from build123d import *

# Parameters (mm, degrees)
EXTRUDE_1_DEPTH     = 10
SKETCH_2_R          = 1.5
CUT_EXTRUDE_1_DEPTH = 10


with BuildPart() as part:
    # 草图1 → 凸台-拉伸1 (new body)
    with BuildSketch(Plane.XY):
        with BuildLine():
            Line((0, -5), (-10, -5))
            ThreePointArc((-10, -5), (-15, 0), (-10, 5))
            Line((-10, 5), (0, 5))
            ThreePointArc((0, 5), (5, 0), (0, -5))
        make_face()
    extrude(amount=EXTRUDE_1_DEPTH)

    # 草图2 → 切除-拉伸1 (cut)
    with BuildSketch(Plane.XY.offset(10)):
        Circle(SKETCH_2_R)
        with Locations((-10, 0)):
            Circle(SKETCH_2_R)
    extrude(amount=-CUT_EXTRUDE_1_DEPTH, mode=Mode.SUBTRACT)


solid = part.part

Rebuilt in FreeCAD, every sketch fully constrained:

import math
import FreeCAD as App
import Part
import Sketcher
Q = App.Units.Quantity

doc = App.newDocument("Part")
body = doc.addObject("PartDesign::Body", "Body")

sketch1 = body.newObject("Sketcher::SketchObject", "Sketch")
sketch1.AttachmentSupport = (doc.getObject("XY_Plane"), [""])
sketch1.MapMode = "FlatFace"
sketch1.addGeometry([
    Part.LineSegment(App.Vector(-10, -5, 0), App.Vector(0, -5, 0)),
    Part.ArcOfCircle(Part.Circle(App.Vector(0, 0, 0), App.Vector(0, 0, 1), 5), math.radians(-90), math.radians(90)),
    Part.LineSegment(App.Vector(0, 5, 0), App.Vector(-10, 5, 0)),
    Part.ArcOfCircle(Part.Circle(App.Vector(-10, 0, 0), App.Vector(0, 0, 1), 5), math.radians(90), math.radians(270)),
], False)
sketch1.addConstraint([
    Sketcher.Constraint("Tangent", 0, 2, 1, 1),
    Sketcher.Constraint("Tangent", 1, 2, 2, 1),
    Sketcher.Constraint("Tangent", 2, 2, 3, 1),
    Sketcher.Constraint("Tangent", 3, 2, 0, 1),
    Sketcher.Constraint("Horizontal", 0),
    Sketcher.Constraint("Horizontal", 2),
    Sketcher.Constraint("Coincident", 1, 3, -1, 1),
    Sketcher.Constraint("Radius", 1, Q("5 mm")),
    Sketcher.Constraint("DistanceX", 0, 1, 0, 2, Q("10 mm")),
])
pad1 = body.newObject("PartDesign::Pad", "Pad")
pad1.Profile = sketch1
pad1.Length = 10

sketch2 = body.newObject("Sketcher::SketchObject", "Sketch001")
sketch2.AttachmentSupport = (doc.getObject("XY_Plane"), [""])
sketch2.MapMode = "FlatFace"
sketch2.AttachmentOffset = App.Placement(App.Vector(0, 0, 10), App.Rotation())
sketch2.addGeometry([
    Part.Circle(App.Vector(0, 0, 0), App.Vector(0, 0, 1), 1.5),
    Part.Circle(App.Vector(-10, 0, 0), App.Vector(0, 0, 1), 1.5),
], False)
sketch2.addConstraint([
    Sketcher.Constraint("Coincident", 0, 3, -1, 1),
    Sketcher.Constraint("Equal", 0, 1),
    Sketcher.Constraint("PointOnObject", 1, 3, -1),
    Sketcher.Constraint("Diameter", 0, Q("3 mm")),
    Sketcher.Constraint("DistanceX", 1, 3, -1, 1, Q("10 mm")),
])
pocket1 = body.newObject("PartDesign::Pocket", "Pocket")
pocket1.Profile = sketch2
pocket1.Length = 10

doc.recompute()
